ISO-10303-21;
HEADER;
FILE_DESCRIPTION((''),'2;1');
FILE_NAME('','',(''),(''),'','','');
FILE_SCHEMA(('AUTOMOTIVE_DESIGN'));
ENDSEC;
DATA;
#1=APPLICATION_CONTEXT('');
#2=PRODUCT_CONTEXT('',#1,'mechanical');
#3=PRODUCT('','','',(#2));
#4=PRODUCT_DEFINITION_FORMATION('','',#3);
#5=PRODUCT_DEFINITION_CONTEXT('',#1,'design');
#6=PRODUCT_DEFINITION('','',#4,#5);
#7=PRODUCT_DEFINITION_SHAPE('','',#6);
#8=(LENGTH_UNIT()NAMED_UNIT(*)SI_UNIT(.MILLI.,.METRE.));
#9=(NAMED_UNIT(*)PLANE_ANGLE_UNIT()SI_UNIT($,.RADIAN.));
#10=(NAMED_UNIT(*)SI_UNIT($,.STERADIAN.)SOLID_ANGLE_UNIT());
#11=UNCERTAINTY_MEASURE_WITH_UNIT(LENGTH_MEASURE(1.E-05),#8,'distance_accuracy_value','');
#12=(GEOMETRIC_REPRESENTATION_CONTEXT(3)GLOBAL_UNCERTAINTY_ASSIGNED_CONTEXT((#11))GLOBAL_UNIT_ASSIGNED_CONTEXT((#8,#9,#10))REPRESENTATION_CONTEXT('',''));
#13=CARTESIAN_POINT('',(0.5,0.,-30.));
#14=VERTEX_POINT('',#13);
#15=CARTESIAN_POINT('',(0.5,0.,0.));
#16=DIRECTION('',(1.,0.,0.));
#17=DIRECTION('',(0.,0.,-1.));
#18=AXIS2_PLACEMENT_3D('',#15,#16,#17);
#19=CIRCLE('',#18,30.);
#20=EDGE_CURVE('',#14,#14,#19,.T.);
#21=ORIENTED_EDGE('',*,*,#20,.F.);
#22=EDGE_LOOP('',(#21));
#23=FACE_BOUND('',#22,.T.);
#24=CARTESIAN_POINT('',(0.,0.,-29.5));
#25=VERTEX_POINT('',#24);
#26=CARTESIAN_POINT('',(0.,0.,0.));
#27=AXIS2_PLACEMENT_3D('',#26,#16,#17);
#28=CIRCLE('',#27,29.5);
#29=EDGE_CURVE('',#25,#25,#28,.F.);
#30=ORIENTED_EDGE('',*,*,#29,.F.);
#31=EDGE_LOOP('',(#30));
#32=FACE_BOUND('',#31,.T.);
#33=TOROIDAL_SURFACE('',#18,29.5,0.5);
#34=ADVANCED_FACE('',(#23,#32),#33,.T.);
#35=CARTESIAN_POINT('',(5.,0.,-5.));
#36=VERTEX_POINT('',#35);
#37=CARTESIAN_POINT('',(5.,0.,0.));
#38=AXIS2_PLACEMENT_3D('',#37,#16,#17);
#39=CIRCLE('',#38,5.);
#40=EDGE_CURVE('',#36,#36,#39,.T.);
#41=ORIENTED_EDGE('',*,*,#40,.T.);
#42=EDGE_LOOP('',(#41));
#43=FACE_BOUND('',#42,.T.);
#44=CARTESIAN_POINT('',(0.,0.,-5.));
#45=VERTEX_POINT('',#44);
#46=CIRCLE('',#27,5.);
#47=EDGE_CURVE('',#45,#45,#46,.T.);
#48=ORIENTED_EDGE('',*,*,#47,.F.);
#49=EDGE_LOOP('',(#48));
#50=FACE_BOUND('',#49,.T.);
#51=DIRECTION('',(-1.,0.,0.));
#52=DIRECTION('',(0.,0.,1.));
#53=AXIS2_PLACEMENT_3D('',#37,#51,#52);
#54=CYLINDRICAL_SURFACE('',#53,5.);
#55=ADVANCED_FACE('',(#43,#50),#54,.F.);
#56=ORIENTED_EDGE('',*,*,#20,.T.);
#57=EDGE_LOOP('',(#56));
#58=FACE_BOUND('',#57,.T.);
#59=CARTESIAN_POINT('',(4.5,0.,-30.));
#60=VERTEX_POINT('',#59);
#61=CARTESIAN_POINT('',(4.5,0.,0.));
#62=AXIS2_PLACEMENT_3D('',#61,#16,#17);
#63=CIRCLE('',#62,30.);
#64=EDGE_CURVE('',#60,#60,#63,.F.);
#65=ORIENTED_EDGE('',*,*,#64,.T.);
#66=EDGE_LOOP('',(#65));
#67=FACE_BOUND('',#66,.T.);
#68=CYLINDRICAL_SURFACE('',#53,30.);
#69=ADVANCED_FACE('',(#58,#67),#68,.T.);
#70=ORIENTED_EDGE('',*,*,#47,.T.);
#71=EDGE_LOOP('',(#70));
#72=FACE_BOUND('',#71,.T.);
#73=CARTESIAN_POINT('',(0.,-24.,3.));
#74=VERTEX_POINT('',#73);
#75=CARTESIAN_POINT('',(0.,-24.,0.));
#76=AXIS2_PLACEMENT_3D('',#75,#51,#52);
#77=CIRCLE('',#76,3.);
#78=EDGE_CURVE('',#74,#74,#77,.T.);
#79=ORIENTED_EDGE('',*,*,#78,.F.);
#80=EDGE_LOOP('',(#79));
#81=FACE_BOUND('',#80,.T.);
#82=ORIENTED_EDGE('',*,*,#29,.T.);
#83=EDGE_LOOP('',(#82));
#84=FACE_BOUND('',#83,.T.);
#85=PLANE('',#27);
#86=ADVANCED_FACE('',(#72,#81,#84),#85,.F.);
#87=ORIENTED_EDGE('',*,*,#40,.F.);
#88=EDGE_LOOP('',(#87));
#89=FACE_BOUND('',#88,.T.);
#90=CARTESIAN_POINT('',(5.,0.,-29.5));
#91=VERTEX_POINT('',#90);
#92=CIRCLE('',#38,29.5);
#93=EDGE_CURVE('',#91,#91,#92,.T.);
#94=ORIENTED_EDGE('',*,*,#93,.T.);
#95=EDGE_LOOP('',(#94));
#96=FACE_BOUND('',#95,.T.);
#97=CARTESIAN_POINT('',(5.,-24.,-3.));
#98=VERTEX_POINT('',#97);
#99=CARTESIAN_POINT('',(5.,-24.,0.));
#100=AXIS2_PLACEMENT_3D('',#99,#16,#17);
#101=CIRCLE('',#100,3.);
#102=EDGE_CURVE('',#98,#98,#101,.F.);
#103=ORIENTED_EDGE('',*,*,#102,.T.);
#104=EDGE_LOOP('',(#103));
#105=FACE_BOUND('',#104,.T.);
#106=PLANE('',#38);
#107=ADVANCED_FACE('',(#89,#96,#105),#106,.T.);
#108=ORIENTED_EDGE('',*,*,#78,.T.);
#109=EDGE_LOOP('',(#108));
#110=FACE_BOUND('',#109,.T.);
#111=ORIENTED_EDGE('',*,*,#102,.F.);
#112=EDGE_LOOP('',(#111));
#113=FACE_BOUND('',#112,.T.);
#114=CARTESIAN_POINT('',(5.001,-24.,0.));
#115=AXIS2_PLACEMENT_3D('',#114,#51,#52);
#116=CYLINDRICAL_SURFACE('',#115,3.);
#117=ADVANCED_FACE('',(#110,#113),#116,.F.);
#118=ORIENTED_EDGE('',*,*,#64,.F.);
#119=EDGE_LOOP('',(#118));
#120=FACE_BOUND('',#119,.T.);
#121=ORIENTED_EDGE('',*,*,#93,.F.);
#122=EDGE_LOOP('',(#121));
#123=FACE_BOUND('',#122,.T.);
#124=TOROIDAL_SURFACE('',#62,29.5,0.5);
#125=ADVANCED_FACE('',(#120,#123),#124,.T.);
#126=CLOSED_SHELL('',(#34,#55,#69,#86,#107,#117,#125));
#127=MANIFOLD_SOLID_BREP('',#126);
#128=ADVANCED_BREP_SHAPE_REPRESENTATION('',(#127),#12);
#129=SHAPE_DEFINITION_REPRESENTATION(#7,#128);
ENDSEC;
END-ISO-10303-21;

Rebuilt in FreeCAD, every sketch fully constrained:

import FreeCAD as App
import Part
import Sketcher


def edges_at(feature, points):
    """Names of the edges that pass closest to the given points."""
    edges = feature.Shape.Edges
    near = lambda p: min(range(len(edges)), key=lambda i: edges[i].distToShape(Part.Vertex(*p))[0])
    return sorted({f"Edge{near(p) + 1}" for p in points})

doc = App.newDocument("Part")
params = doc.addObject("Spreadsheet::Sheet", "Params")
for row, (alias, value) in enumerate([
    ("sketch1_diameter", "60 mm"),
    ("sketch1_diameter2", "10 mm"),
    ("pad1_length", "5 mm"),
    ("sketch2_diameter", "6 mm"),
    ("fillet_radius", "0.5 mm"),
], start=1):
    params.set(f"A{row}", alias)
    params.set(f"B{row}", "=" + value)
    params.setAlias(f"B{row}", alias)

body = doc.addObject("PartDesign::Body", "Body")

# Sketch on YZ plane
sketch1 = body.newObject("Sketcher::SketchObject", "Sketch")
sketch1.AttachmentSupport = (doc.getObject("YZ_Plane"), [""])
sketch1.MapMode = "FlatFace"
sketch1.addGeometry(Part.Circle(App.Vector(0, 0, 0), App.Vector(0, 0, 1), 30), False)
sketch1.addGeometry(Part.Circle(App.Vector(0, 0, 0), App.Vector(0, 0, 1), 5), False)
sketch1.addConstraint(Sketcher.Constraint("Coincident", 0, 3, -1, 1))
sketch1.addConstraint(Sketcher.Constraint("Coincident", 1, 3, -1, 1))
sketch1.addConstraint(Sketcher.Constraint("Diameter", 0, 60.0))
sketch1.addConstraint(Sketcher.Constraint("Diameter", 1, 10.0))
sketch1.setExpression("Constraints[2]", "Params.sketch1_diameter")
sketch1.setExpression("Constraints[3]", "Params.sketch1_diameter2")
pad1 = body.newObject("PartDesign::Pad", "Pad")
pad1.Profile = sketch1
pad1.setExpression("Length", "Params.pad1_length")

# Sketch on YZ plane
sketch2 = body.newObject("Sketcher::SketchObject", "Sketch001")
sketch2.AttachmentSupport = (doc.getObject("YZ_Plane"), [""])
sketch2.MapMode = "FlatFace"
sketch2.addGeometry(Part.Circle(App.Vector(-24, 0, 0), App.Vector(0, 0, 1), 3), False)
sketch2.addConstraint(Sketcher.Constraint("PointOnObject", 0, 3, -1))
sketch2.addConstraint(Sketcher.Constraint("Diameter", 0, 6.0))
sketch2.addConstraint(Sketcher.Constraint("DistanceX", 0, 3, -1, 1, 24.0))
sketch2.setExpression("Constraints[1]", "Params.sketch2_diameter")
pocket1 = body.newObject("PartDesign::Pocket", "Pocket")
pocket1.Profile = sketch2
pocket1.Type = "UpToFirst"
pocket1.Reversed = True
doc.recompute()

fillet = body.newObject("PartDesign::Fillet", "Fillet")
fillet.Base = (pocket1, edges_at(pocket1, [(0, 0, 30), (5, 0, 30)]))
fillet.setExpression("Radius", "Params.fillet_radius")

doc.recompute()
